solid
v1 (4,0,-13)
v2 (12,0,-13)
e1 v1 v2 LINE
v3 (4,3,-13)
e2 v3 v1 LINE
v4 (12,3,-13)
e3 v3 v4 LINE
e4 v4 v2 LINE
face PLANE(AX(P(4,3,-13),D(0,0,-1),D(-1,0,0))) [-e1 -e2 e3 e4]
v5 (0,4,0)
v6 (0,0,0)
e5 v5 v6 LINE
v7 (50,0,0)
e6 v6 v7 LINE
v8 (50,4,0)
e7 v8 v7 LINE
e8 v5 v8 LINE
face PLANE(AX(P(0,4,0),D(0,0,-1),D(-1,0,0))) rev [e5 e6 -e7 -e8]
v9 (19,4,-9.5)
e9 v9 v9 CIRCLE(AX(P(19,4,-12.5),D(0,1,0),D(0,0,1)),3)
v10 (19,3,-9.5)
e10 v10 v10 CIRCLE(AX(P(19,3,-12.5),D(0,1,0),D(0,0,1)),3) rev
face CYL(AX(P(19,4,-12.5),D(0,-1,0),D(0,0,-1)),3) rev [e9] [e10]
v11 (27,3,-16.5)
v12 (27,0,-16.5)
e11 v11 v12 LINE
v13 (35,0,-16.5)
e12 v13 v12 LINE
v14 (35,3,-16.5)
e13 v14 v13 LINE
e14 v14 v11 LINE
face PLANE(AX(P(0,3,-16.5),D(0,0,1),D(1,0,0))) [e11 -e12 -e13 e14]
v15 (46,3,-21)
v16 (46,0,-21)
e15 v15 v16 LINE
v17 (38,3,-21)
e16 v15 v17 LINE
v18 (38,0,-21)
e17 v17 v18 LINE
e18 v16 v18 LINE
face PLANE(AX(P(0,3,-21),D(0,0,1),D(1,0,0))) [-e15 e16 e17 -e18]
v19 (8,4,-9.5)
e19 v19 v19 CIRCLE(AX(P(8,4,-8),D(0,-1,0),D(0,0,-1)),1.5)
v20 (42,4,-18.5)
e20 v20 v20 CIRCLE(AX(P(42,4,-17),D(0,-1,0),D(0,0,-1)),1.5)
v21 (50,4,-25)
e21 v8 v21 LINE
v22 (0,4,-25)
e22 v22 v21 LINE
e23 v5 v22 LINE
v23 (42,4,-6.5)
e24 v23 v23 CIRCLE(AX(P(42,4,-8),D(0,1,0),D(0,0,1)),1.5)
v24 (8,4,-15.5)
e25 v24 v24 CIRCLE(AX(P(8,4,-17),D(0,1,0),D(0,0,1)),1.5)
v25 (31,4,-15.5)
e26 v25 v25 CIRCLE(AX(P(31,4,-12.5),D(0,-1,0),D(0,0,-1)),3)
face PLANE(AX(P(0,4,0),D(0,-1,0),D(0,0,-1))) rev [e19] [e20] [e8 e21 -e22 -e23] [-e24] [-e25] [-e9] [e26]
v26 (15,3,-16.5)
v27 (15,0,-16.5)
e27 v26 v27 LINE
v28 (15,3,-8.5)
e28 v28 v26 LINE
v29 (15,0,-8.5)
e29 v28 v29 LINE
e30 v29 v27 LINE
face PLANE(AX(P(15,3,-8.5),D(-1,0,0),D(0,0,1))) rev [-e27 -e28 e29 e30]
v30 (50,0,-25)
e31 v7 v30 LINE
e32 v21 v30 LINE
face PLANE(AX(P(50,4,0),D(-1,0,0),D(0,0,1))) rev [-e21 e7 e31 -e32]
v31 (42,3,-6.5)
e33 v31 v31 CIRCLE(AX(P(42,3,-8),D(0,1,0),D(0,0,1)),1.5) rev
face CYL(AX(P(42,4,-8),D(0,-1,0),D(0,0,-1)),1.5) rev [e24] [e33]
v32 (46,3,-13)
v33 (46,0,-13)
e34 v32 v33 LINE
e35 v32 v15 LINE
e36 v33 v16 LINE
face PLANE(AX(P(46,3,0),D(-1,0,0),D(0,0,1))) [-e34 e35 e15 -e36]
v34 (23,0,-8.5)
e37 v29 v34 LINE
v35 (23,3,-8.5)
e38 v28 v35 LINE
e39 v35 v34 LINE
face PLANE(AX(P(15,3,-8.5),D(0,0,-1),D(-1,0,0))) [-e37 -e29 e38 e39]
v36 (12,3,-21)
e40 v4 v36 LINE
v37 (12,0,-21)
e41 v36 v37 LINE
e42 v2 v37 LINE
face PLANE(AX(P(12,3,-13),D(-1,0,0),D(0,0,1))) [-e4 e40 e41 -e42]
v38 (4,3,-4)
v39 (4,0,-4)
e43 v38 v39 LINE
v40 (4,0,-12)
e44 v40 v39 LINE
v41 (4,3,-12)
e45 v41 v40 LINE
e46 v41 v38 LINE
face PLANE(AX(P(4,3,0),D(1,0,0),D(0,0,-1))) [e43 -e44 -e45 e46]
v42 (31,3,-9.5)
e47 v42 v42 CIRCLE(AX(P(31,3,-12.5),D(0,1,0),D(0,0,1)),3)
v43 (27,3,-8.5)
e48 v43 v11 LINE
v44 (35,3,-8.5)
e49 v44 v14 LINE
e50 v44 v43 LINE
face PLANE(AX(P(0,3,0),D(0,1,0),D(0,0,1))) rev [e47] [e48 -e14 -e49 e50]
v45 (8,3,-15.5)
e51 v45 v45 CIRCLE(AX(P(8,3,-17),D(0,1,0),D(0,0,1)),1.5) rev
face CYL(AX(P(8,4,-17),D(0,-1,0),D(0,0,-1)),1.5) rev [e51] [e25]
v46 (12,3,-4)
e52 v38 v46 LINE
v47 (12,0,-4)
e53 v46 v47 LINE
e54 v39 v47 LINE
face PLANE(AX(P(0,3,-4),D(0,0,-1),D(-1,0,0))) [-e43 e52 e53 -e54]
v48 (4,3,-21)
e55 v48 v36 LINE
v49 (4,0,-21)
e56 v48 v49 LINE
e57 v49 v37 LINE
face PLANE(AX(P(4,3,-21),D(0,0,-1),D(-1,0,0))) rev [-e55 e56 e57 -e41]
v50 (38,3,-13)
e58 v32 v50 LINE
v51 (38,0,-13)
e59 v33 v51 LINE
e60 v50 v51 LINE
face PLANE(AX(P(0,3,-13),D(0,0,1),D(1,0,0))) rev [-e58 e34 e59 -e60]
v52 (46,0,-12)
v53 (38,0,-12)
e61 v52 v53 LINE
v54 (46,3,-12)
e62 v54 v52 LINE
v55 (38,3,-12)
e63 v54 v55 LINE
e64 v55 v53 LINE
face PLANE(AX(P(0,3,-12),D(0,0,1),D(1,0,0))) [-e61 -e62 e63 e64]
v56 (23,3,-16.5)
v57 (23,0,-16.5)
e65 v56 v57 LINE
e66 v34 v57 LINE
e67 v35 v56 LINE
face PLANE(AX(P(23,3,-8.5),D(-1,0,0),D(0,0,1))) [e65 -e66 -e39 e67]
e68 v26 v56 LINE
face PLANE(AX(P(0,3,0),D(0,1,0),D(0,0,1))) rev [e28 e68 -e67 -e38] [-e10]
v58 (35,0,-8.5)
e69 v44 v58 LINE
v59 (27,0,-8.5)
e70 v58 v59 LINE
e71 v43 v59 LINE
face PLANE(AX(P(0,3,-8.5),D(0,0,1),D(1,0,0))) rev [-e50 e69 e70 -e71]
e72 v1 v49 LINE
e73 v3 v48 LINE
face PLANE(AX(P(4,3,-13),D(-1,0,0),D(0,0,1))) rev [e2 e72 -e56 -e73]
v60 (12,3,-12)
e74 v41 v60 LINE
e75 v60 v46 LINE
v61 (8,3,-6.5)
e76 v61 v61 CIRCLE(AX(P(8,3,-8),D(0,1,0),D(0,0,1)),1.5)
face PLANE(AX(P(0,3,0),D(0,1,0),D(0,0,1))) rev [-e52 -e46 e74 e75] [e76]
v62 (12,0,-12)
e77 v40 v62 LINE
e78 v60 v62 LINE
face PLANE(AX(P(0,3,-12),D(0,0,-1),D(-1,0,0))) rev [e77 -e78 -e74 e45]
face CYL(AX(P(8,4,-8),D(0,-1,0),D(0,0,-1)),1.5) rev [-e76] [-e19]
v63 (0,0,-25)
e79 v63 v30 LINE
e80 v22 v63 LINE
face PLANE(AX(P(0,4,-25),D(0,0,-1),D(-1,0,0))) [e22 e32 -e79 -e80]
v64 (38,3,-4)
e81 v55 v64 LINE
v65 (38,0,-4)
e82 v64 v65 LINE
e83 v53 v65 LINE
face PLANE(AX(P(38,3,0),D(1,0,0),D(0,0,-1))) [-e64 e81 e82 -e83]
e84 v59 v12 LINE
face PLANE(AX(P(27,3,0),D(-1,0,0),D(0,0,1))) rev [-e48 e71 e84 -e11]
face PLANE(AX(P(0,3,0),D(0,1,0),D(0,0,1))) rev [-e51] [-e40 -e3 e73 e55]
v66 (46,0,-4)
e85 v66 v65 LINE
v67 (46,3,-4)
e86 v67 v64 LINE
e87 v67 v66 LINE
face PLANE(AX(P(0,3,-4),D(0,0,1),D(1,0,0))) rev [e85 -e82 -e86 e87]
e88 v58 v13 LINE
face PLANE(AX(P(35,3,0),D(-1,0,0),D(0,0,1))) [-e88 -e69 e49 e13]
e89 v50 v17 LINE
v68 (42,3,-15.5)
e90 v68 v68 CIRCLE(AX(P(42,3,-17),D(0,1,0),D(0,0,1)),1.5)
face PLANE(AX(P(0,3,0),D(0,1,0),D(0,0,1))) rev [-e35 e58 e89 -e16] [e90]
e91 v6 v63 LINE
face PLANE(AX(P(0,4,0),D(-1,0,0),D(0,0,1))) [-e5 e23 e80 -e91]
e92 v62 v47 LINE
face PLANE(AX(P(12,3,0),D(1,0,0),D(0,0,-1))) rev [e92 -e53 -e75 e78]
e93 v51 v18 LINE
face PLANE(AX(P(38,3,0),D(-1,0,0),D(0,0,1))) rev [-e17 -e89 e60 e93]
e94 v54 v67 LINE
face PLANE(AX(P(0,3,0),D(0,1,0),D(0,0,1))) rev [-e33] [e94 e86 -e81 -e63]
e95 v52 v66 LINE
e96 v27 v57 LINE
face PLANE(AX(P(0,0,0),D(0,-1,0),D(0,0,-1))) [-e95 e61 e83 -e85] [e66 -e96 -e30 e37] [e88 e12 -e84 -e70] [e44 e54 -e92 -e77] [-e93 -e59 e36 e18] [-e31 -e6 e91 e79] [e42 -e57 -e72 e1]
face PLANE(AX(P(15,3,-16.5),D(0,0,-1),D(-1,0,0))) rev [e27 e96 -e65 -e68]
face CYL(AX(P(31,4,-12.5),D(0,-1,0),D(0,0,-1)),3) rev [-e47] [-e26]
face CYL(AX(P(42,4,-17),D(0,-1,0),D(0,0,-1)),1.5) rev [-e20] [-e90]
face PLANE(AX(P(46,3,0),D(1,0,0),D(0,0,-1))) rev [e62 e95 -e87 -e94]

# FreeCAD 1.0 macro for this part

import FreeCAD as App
import Part
import Sketcher

doc = App.newDocument("Part")
body = doc.addObject("PartDesign::Body", "Body")

# Sketch on XZ plane
sketch1 = body.newObject("Sketcher::SketchObject", "Sketch")
sketch1.AttachmentSupport = (doc.getObject("XZ_Plane"), [""])
sketch1.MapMode = "FlatFace"
sketch1.addGeometry([
    Part.LineSegment(App.Vector(0, -25, 0), App.Vector(0, 0, 0)),
    Part.LineSegment(App.Vector(0, 0, 0), App.Vector(50, 0, 0)),
    Part.LineSegment(App.Vector(50, 0, 0), App.Vector(50, -25, 0)),
    Part.LineSegment(App.Vector(50, -25, 0), App.Vector(0, -25, 0)),
], False)
sketch1.addConstraint([
    Sketcher.Constraint("Coincident", 0, 2, 1, 1),
    Sketcher.Constraint("Coincident", 1, 2, 2, 1),
    Sketcher.Constraint("Coincident", 2, 2, 3, 1),
    Sketcher.Constraint("Coincident", 3, 2, 0, 1),
    Sketcher.Constraint("Vertical", 0),
    Sketcher.Constraint("Horizontal", 1),
    Sketcher.Constraint("Vertical", 2),
    Sketcher.Constraint("Horizontal", 3),
    Sketcher.Constraint("Coincident", 0, 2, -1, 1),
    Sketcher.Constraint("DistanceX", 1, 1, 1, 2, 50.0),
    Sketcher.Constraint("DistanceY", 0, 1, 0, 2, 25.0),
])
pad1 = body.newObject("PartDesign::Pad", "Pad")
pad1.Profile = sketch1
pad1.Length = 4
pad1.Reversed = True

# Sketch on XZ plane
sketch2 = body.newObject("Sketcher::SketchObject", "Sketch001")
sketch2.AttachmentSupport = (doc.getObject("XZ_Plane"), [""])
sketch2.MapMode = "FlatFace"
sketch2.addGeometry([
    Part.LineSegment(App.Vector(38, -12, 0), App.Vector(38, -4, 0)),  # 0
    Part.LineSegment(App.Vector(38, -4, 0), App.Vector(46, -4, 0)),  # 1
    Part.LineSegment(App.Vector(46, -4, 0), App.Vector(46, -12, 0)),  # 2
    Part.LineSegment(App.Vector(46, -12, 0), App.Vector(38, -12, 0)),  # 3
    Part.Circle(App.Vector(42, -8, 0), App.Vector(0, 0, 1), 1.5),  # 4
    Part.LineSegment(App.Vector(38, -21, 0), App.Vector(38, -13, 0)),  # 5
    Part.LineSegment(App.Vector(38, -13, 0), App.Vector(46, -13, 0)),  # 6
    Part.LineSegment(App.Vector(46, -13, 0), App.Vector(46, -21, 0)),  # 7
    Part.LineSegment(App.Vector(46, -21, 0), App.Vector(38, -21, 0)),  # 8
    Part.Circle(App.Vector(42, -17, 0), App.Vector(0, 0, 1), 1.5),  # 9
    Part.LineSegment(App.Vector(27, -16.5, 0), App.Vector(27, -8.5, 0)),  # 10
    Part.LineSegment(App.Vector(27, -8.5, 0), App.Vector(35, -8.5, 0)),  # 11
    Part.LineSegment(App.Vector(35, -8.5, 0), App.Vector(35, -16.5, 0)),  # 12
    Part.LineSegment(App.Vector(35, -16.5, 0), App.Vector(27, -16.5, 0)),  # 13
    Part.Circle(App.Vector(31, -12.5, 0), App.Vector(0, 0, 1), 3),  # 14
    Part.LineSegment(App.Vector(4, -12, 0), App.Vector(4, -4, 0)),  # 15
    Part.LineSegment(App.Vector(4, -4, 0), App.Vector(12, -4, 0)),  # 16
    Part.LineSegment(App.Vector(12, -4, 0), App.Vector(12, -12, 0)),  # 17
    Part.LineSegment(App.Vector(12, -12, 0), App.Vector(4, -12, 0)),  # 18
    Part.Circle(App.Vector(8, -8, 0), App.Vector(0, 0, 1), 1.5),  # 19
    Part.LineSegment(App.Vector(15, -16.5, 0), App.Vector(15, -8.5, 0)),  # 20
    Part.LineSegment(App.Vector(15, -8.5, 0), App.Vector(23, -8.5, 0)),  # 21
    Part.LineSegment(App.Vector(23, -8.5, 0), App.Vector(23, -16.5, 0)),  # 22
    Part.LineSegment(App.Vector(23, -16.5, 0), App.Vector(15, -16.5, 0)),  # 23
    Part.LineSegment(App.Vector(4, -21, 0), App.Vector(4, -13, 0)),  # 24
    Part.LineSegment(App.Vector(4, -13, 0), App.Vector(12, -13, 0)),  # 25
    Part.LineSegment(App.Vector(12, -13, 0), App.Vector(12, -21, 0)),  # 26
    Part.LineSegment(App.Vector(12, -21, 0), App.Vector(4, -21, 0)),  # 27
], False)
sketch2.addConstraint([
    Sketcher.Constraint("Coincident", 0, 2, 1, 1),
    Sketcher.Constraint("Coincident", 1, 2, 2, 1),
    Sketcher.Constraint("Coincident", 2, 2, 3, 1),
    Sketcher.Constraint("Coincident", 3, 2, 0, 1),
    Sketcher.Constraint("Coincident", 5, 2, 6, 1),
    Sketcher.Constraint("Coincident", 6, 2, 7, 1),
    Sketcher.Constraint("Coincident", 7, 2, 8, 1),
    Sketcher.Constraint("Coincident", 8, 2, 5, 1),
    Sketcher.Constraint("Coincident", 10, 2, 11, 1),
    Sketcher.Constraint("Coincident", 11, 2, 12, 1),
    Sketcher.Constraint("Coincident", 12, 2, 13, 1),
    Sketcher.Constraint("Coincident", 13, 2, 10, 1),
    Sketcher.Constraint("Coincident", 15, 2, 16, 1),
    Sketcher.Constraint("Coincident", 16, 2, 17, 1),
    Sketcher.Constraint("Coincident", 17, 2, 18, 1),
    Sketcher.Constraint("Coincident", 18, 2, 15, 1),
    Sketcher.Constraint("Coincident", 20, 2, 21, 1),
    Sketcher.Constraint("Coincident", 21, 2, 22, 1),
    Sketcher.Constraint("Coincident", 22, 2, 23, 1),
    Sketcher.Constraint("Coincident", 23, 2, 20, 1),
    Sketcher.Constraint("Coincident", 24, 2, 25, 1),
    Sketcher.Constraint("Coincident", 25, 2, 26, 1),
    Sketcher.Constraint("Coincident", 26, 2, 27, 1),
    Sketcher.Constraint("Coincident", 27, 2, 24, 1),
    Sketcher.Constraint("Vertical", 0),
    Sketcher.Constraint("Horizontal", 1),
    Sketcher.Constraint("Vertical", 2),
    Sketcher.Constraint("Horizontal", 3),
    Sketcher.Constraint("Vertical", 5),
    Sketcher.Constraint("Horizontal", 6),
    Sketcher.Constraint("Vertical", 7),
    Sketcher.Constraint("Horizontal", 8),
    Sketcher.Constraint("Vertical", 10),
    Sketcher.Constraint("Horizontal", 11),
    Sketcher.Constraint("Vertical", 12),
    Sketcher.Constraint("Horizontal", 13),
    Sketcher.Constraint("Vertical", 15),
    Sketcher.Constraint("Horizontal", 16),
    Sketcher.Constraint("Vertical", 17),
    Sketcher.Constraint("Horizontal", 18),
    Sketcher.Constraint("Vertical", 20),
    Sketcher.Constraint("Horizontal", 21),
    Sketcher.Constraint("Vertical", 22),
    Sketcher.Constraint("Horizontal", 23),
    Sketcher.Constraint("Vertical", 24),
    Sketcher.Constraint("Horizontal", 25),
    Sketcher.Constraint("Vertical", 26),
    Sketcher.Constraint("Horizontal", 27),
    Sketcher.Constraint("Equal", 4, 9),
    Sketcher.Constraint("Equal", 9, 19),
    Sketcher.Constraint("Horizontal", 4, 3, 19, 3),
    Sketcher.Constraint("Horizontal", 1, 2, 15, 2),
    Sketcher.Constraint("Horizontal", 3, 2, 17, 2),
    Sketcher.Constraint("Horizontal", 11, 2, 20, 2),
    Sketcher.Constraint("Horizontal", 13, 2, 22, 2),
    Sketcher.Constraint("Horizontal", 6, 2, 24, 2),
    Sketcher.Constraint("Horizontal", 8, 2, 26, 2),
    Sketcher.Constraint("Vertical", 4, 3, 9, 3),
    Sketcher.Constraint("Vertical", 3, 2, 5, 2),
    Sketcher.Constraint("Vertical", 2, 2, 6, 2),
    Sketcher.Constraint("Vertical", 18, 2, 24, 2),
    Sketcher.Constraint("Vertical", 17, 2, 25, 2),
    Sketcher.Constraint("Equal", 8, 11),
    Sketcher.Constraint("Equal", 13, 16),
    Sketcher.Constraint("Equal", 18, 21),
    Sketcher.Constraint("Equal", 27, 0),
    Sketcher.Constraint("Equal", 2, 5),
    Sketcher.Constraint("Equal", 7, 10),
    Sketcher.Constraint("Diameter", 4, 3.0),
    Sketcher.Constraint("Diameter", 14, 6.0),
    Sketcher.Constraint("DistanceX", 1, 1, 1, 2, 8.0),
    Sketcher.Constraint("DistanceX", -1, 1, 4, 3, 42.0),
    Sketcher.Constraint("DistanceY", 4, 3, -1, 1, 8.0),
    Sketcher.Constraint("DistanceY", 9, 3, -1, 1, 17.0),
    Sketcher.Constraint("DistanceX", -1, 1, 14, 3, 31.0),
    Sketcher.Constraint("DistanceX", -1, 1, 19, 3, 8.0),
    Sketcher.Constraint("DistanceX", -1, 1, 0, 2, 38.0),
    Sketcher.Constraint("DistanceY", 0, 2, -1, 1, 4.0),
    Sketcher.Constraint("DistanceY", 5, 2, -1, 1, 13.0),
    Sketcher.Constraint("DistanceX", -1, 1, 10, 2, 27.0),
    Sketcher.Constraint("DistanceX", -1, 1, 15, 2, 4.0),
    Sketcher.Constraint("DistanceX", -1, 1, 20, 2, 15.0),
    Sketcher.Constraint("DistanceY", 14, 3, 10, 2, 4.0),
    Sketcher.Constraint("DistanceY", 14, 3, -1, 1, 12.5),
])
pocket1 = body.newObject("PartDesign::Pocket", "Pocket")
pocket1.Profile = sketch2
pocket1.Length = 3

# Sketch on XZ plane
sketch3 = body.newObject("Sketcher::SketchObject", "Sketch002")
sketch3.AttachmentSupport = (doc.getObject("XZ_Plane"), [""])
sketch3.MapMode = "FlatFace"
sketch3.addGeometry([
    Part.Circle(App.Vector(8, -17, 0), App.Vector(0, 0, 1), 1.5),  # 0
    Part.Circle(App.Vector(42, -17, 0), App.Vector(0, 0, 1), 1.5),  # 1
    Part.Circle(App.Vector(42, -8, 0), App.Vector(0, 0, 1), 1.5),  # 2
    Part.Circle(App.Vector(31, -12.5, 0), App.Vector(0, 0, 1), 3),  # 3
    Part.Circle(App.Vector(19, -12.5, 0), App.Vector(0, 0, 1), 3),  # 4
    Part.Circle(App.Vector(8, -8, 0), App.Vector(0, 0, 1), 1.5),  # 5
], False)
sketch3.addConstraint([
    Sketcher.Constraint("Equal", 0, 1),
    Sketcher.Constraint("Equal", 1, 2),
    Sketcher.Constraint("Equal", 3, 4),
    Sketcher.Constraint("Equal", 2, 5),
    Sketcher.Constraint("Horizontal", 0, 3, 1, 3),
    Sketcher.Constraint("Horizontal", 3, 3, 4, 3),
    Sketcher.Constraint("Horizontal", 2, 3, 5, 3),
    Sketcher.Constraint("Vertical", 1, 3, 2, 3),
    Sketcher.Constraint("Vertical", 0, 3, 5, 3),
    Sketcher.Constraint("Diameter", 0, 3.0),
    Sketcher.Constraint("Diameter", 3, 6.0),
    Sketcher.Constraint("DistanceX", -1, 1, 0, 3, 8.0),
    Sketcher.Constraint("DistanceY", 0, 3, -1, 1, 17.0),
    Sketcher.Constraint("DistanceX", -1, 1, 1, 3, 42.0),
    Sketcher.Constraint("DistanceY", 2, 3, -1, 1, 8.0),
    Sketcher.Constraint("DistanceX", -1, 1, 3, 3, 31.0),
    Sketcher.Constraint("DistanceX", -1, 1, 4, 3, 19.0),
    Sketcher.Constraint("DistanceY", 3, 3, -1, 1, 12.5),
])
pocket2 = body.newObject("PartDesign::Pocket", "Pocket001")
pocket2.Profile = sketch3
pocket2.Type = "ThroughAll"

doc.recompute()
